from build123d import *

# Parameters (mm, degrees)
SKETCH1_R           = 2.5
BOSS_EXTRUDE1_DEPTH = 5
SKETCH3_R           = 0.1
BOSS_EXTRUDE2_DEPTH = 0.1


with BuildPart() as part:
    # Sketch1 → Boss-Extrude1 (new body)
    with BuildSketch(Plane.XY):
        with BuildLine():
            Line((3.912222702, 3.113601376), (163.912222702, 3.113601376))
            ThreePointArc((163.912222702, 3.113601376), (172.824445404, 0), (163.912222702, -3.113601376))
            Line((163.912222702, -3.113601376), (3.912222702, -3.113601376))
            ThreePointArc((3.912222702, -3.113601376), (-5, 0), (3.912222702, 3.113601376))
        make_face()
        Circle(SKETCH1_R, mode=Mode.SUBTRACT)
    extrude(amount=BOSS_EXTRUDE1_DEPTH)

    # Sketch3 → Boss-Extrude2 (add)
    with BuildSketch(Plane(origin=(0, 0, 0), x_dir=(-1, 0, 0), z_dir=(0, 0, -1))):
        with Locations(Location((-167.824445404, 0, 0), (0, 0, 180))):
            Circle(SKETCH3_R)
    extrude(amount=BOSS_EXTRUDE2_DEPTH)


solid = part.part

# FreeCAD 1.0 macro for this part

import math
import FreeCAD as App
import Part
import Sketcher
Q = App.Units.Quantity

doc = App.newDocument("Part")
body = doc.addObject("PartDesign::Body", "Body")

sketch1 = body.newObject("Sketcher::SketchObject", "Sketch")
sketch1.AttachmentSupport = (doc.getObject("XY_Plane"), [""])
sketch1.MapMode = "FlatFace"
sketch1.addGeometry(Part.LineSegment(App.Vector(163.9, 3.1, 0), App.Vector(3.9, 3.1, 0)), False)
sketch1.addGeometry(Part.ArcOfCircle(Part.Circle(App.Vector(0, 0, 0), App.Vector(0, 0, 1), 5), math.radians(39), math.radians(321)), False)
sketch1.addGeometry(Part.LineSegment(App.Vector(3.9, -3.1, 0), App.Vector(163.9, -3.1, 0)), False)
sketch1.addGeometry(Part.ArcOfCircle(Part.Circle(App.Vector(167.8, 0, 0), App.Vector(0, 0, 1), 5), math.radians(-141), math.radians(141)), False)
sketch1.addGeometry(Part.Circle(App.Vector(0, 0, 0), App.Vector(0, 0, 1), 2.5), False)
sketch1.addConstraint(Sketcher.Constraint("Coincident", 0, 2, 1, 1))
sketch1.addConstraint(Sketcher.Constraint("Coincident", 1, 2, 2, 1))
sketch1.addConstraint(Sketcher.Constraint("Coincident", 2, 2, 3, 1))
sketch1.addConstraint(Sketcher.Constraint("Coincident", 3, 2, 0, 1))
sketch1.addConstraint(Sketcher.Constraint("Horizontal", 0))
sketch1.addConstraint(Sketcher.Constraint("Horizontal", 2))
sketch1.addConstraint(Sketcher.Constraint("Coincident", 1, 3, -1, 1))
sketch1.addConstraint(Sketcher.Constraint("Coincident", 4, 3, -1, 1))
sketch1.addConstraint(Sketcher.Constraint("Equal", 1, 3))
sketch1.addConstraint(Sketcher.Constraint("Symmetric", 2, 2, 3, 2, -1))
sketch1.addConstraint(Sketcher.Constraint("Diameter", 4, Q("5 mm")))
sketch1.addConstraint(Sketcher.Constraint("Radius", 1, Q("5 mm")))
sketch1.addConstraint(Sketcher.Constraint("DistanceX", 0, 2, 0, 1, Q("160 mm")))
sketch1.addConstraint(Sketcher.Constraint("DistanceY", -1, 1, 0, 2, Q("3.113601 mm")))
pad1 = body.newObject("PartDesign::Pad", "Pad")
pad1.Profile = sketch1
pad1.Length = 5

sketch2 = body.newObject("Sketcher::SketchObject", "Sketch001")
sketch2.AttachmentSupport = (doc.getObject("XY_Plane"), [""])
sketch2.MapMode = "FlatFace"
sketch2.addGeometry(Part.Circle(App.Vector(167.82, 0, 0), App.Vector(0, 0, 1), 0.1), False)
sketch2.addConstraint(Sketcher.Constraint("PointOnObject", 0, 3, -1))
sketch2.addConstraint(Sketcher.Constraint("Diameter", 0, Q("0.2 mm")))
sketch2.addConstraint(Sketcher.Constraint("DistanceX", -1, 1, 0, 3, Q("167.824445 mm")))
pad2 = body.newObject("PartDesign::Pad", "Pad001")
pad2.Profile = sketch2
pad2.Length = 0.1
pad2.Reversed = True

doc.recompute()
